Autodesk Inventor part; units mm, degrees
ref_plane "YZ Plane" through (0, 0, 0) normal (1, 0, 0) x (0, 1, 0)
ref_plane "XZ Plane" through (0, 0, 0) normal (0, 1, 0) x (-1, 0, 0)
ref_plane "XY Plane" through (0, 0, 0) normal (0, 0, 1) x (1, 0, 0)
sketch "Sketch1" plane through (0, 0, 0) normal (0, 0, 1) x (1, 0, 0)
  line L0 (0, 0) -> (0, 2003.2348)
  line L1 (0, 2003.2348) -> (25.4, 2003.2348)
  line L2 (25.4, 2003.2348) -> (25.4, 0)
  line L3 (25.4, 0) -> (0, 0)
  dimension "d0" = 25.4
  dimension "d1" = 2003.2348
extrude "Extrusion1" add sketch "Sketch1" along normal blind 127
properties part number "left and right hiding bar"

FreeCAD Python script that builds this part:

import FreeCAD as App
import Part
import Sketcher
from FreeCAD import Vector
Q = App.Units.Quantity


def add_polygon(sketch, points):
    """Adds a closed chain of lines whose ends are joined by coincident constraints."""
    first, n = sketch.GeometryCount, len(points)
    for a, b in zip(points, points[1:] + points[:1]):
        sketch.addGeometry(Part.LineSegment(App.Vector(*a, 0), App.Vector(*b, 0)), False)
    for i in range(n):
        sketch.addConstraint(Sketcher.Constraint("Coincident", first + i, 2, first + (i + 1) % n, 1))

doc = App.newDocument("Part")
params = doc.addObject("Spreadsheet::Sheet", "Params")
for row, (alias, value) in enumerate([
    ("sketch1_width", "1 in"),
    ("pad1_length", "5 in"),
], start=1):
    params.set(f"A{row}", alias)
    params.set(f"B{row}", "=" + value)
    params.setAlias(f"B{row}", alias)

body = doc.addObject("PartDesign::Body", "Body")

# Sketch on XY plane
sketch1 = body.newObject("Sketcher::SketchObject", "Sketch")
sketch1.AttachmentSupport = (doc.getObject("XY_Plane"), [""])
sketch1.MapMode = "FlatFace"
add_polygon(sketch1, [(0, 2003), (0, 0), (25, 0), (25, 2003)])  # lines 0-3
sketch1.addConstraint([
    Sketcher.Constraint("Vertical", 0),
    Sketcher.Constraint("Horizontal", 1),
    Sketcher.Constraint("Vertical", 2),
    Sketcher.Constraint("Horizontal", 3),
    Sketcher.Constraint("Coincident", 0, 2, -1, 1),
    Sketcher.Constraint("DistanceX", 1, 1, 1, 2, Q("1 in")),
    Sketcher.Constraint("DistanceY", 0, 2, 0, 1, Q("78.8675 in")),
])
sketch1.setExpression("Constraints[9]", "Params.sketch1_width")
pad1 = body.newObject("PartDesign::Pad", "Pad")
pad1.Profile = sketch1
pad1.setExpression("Length", "Params.pad1_length")

doc.recompute()
